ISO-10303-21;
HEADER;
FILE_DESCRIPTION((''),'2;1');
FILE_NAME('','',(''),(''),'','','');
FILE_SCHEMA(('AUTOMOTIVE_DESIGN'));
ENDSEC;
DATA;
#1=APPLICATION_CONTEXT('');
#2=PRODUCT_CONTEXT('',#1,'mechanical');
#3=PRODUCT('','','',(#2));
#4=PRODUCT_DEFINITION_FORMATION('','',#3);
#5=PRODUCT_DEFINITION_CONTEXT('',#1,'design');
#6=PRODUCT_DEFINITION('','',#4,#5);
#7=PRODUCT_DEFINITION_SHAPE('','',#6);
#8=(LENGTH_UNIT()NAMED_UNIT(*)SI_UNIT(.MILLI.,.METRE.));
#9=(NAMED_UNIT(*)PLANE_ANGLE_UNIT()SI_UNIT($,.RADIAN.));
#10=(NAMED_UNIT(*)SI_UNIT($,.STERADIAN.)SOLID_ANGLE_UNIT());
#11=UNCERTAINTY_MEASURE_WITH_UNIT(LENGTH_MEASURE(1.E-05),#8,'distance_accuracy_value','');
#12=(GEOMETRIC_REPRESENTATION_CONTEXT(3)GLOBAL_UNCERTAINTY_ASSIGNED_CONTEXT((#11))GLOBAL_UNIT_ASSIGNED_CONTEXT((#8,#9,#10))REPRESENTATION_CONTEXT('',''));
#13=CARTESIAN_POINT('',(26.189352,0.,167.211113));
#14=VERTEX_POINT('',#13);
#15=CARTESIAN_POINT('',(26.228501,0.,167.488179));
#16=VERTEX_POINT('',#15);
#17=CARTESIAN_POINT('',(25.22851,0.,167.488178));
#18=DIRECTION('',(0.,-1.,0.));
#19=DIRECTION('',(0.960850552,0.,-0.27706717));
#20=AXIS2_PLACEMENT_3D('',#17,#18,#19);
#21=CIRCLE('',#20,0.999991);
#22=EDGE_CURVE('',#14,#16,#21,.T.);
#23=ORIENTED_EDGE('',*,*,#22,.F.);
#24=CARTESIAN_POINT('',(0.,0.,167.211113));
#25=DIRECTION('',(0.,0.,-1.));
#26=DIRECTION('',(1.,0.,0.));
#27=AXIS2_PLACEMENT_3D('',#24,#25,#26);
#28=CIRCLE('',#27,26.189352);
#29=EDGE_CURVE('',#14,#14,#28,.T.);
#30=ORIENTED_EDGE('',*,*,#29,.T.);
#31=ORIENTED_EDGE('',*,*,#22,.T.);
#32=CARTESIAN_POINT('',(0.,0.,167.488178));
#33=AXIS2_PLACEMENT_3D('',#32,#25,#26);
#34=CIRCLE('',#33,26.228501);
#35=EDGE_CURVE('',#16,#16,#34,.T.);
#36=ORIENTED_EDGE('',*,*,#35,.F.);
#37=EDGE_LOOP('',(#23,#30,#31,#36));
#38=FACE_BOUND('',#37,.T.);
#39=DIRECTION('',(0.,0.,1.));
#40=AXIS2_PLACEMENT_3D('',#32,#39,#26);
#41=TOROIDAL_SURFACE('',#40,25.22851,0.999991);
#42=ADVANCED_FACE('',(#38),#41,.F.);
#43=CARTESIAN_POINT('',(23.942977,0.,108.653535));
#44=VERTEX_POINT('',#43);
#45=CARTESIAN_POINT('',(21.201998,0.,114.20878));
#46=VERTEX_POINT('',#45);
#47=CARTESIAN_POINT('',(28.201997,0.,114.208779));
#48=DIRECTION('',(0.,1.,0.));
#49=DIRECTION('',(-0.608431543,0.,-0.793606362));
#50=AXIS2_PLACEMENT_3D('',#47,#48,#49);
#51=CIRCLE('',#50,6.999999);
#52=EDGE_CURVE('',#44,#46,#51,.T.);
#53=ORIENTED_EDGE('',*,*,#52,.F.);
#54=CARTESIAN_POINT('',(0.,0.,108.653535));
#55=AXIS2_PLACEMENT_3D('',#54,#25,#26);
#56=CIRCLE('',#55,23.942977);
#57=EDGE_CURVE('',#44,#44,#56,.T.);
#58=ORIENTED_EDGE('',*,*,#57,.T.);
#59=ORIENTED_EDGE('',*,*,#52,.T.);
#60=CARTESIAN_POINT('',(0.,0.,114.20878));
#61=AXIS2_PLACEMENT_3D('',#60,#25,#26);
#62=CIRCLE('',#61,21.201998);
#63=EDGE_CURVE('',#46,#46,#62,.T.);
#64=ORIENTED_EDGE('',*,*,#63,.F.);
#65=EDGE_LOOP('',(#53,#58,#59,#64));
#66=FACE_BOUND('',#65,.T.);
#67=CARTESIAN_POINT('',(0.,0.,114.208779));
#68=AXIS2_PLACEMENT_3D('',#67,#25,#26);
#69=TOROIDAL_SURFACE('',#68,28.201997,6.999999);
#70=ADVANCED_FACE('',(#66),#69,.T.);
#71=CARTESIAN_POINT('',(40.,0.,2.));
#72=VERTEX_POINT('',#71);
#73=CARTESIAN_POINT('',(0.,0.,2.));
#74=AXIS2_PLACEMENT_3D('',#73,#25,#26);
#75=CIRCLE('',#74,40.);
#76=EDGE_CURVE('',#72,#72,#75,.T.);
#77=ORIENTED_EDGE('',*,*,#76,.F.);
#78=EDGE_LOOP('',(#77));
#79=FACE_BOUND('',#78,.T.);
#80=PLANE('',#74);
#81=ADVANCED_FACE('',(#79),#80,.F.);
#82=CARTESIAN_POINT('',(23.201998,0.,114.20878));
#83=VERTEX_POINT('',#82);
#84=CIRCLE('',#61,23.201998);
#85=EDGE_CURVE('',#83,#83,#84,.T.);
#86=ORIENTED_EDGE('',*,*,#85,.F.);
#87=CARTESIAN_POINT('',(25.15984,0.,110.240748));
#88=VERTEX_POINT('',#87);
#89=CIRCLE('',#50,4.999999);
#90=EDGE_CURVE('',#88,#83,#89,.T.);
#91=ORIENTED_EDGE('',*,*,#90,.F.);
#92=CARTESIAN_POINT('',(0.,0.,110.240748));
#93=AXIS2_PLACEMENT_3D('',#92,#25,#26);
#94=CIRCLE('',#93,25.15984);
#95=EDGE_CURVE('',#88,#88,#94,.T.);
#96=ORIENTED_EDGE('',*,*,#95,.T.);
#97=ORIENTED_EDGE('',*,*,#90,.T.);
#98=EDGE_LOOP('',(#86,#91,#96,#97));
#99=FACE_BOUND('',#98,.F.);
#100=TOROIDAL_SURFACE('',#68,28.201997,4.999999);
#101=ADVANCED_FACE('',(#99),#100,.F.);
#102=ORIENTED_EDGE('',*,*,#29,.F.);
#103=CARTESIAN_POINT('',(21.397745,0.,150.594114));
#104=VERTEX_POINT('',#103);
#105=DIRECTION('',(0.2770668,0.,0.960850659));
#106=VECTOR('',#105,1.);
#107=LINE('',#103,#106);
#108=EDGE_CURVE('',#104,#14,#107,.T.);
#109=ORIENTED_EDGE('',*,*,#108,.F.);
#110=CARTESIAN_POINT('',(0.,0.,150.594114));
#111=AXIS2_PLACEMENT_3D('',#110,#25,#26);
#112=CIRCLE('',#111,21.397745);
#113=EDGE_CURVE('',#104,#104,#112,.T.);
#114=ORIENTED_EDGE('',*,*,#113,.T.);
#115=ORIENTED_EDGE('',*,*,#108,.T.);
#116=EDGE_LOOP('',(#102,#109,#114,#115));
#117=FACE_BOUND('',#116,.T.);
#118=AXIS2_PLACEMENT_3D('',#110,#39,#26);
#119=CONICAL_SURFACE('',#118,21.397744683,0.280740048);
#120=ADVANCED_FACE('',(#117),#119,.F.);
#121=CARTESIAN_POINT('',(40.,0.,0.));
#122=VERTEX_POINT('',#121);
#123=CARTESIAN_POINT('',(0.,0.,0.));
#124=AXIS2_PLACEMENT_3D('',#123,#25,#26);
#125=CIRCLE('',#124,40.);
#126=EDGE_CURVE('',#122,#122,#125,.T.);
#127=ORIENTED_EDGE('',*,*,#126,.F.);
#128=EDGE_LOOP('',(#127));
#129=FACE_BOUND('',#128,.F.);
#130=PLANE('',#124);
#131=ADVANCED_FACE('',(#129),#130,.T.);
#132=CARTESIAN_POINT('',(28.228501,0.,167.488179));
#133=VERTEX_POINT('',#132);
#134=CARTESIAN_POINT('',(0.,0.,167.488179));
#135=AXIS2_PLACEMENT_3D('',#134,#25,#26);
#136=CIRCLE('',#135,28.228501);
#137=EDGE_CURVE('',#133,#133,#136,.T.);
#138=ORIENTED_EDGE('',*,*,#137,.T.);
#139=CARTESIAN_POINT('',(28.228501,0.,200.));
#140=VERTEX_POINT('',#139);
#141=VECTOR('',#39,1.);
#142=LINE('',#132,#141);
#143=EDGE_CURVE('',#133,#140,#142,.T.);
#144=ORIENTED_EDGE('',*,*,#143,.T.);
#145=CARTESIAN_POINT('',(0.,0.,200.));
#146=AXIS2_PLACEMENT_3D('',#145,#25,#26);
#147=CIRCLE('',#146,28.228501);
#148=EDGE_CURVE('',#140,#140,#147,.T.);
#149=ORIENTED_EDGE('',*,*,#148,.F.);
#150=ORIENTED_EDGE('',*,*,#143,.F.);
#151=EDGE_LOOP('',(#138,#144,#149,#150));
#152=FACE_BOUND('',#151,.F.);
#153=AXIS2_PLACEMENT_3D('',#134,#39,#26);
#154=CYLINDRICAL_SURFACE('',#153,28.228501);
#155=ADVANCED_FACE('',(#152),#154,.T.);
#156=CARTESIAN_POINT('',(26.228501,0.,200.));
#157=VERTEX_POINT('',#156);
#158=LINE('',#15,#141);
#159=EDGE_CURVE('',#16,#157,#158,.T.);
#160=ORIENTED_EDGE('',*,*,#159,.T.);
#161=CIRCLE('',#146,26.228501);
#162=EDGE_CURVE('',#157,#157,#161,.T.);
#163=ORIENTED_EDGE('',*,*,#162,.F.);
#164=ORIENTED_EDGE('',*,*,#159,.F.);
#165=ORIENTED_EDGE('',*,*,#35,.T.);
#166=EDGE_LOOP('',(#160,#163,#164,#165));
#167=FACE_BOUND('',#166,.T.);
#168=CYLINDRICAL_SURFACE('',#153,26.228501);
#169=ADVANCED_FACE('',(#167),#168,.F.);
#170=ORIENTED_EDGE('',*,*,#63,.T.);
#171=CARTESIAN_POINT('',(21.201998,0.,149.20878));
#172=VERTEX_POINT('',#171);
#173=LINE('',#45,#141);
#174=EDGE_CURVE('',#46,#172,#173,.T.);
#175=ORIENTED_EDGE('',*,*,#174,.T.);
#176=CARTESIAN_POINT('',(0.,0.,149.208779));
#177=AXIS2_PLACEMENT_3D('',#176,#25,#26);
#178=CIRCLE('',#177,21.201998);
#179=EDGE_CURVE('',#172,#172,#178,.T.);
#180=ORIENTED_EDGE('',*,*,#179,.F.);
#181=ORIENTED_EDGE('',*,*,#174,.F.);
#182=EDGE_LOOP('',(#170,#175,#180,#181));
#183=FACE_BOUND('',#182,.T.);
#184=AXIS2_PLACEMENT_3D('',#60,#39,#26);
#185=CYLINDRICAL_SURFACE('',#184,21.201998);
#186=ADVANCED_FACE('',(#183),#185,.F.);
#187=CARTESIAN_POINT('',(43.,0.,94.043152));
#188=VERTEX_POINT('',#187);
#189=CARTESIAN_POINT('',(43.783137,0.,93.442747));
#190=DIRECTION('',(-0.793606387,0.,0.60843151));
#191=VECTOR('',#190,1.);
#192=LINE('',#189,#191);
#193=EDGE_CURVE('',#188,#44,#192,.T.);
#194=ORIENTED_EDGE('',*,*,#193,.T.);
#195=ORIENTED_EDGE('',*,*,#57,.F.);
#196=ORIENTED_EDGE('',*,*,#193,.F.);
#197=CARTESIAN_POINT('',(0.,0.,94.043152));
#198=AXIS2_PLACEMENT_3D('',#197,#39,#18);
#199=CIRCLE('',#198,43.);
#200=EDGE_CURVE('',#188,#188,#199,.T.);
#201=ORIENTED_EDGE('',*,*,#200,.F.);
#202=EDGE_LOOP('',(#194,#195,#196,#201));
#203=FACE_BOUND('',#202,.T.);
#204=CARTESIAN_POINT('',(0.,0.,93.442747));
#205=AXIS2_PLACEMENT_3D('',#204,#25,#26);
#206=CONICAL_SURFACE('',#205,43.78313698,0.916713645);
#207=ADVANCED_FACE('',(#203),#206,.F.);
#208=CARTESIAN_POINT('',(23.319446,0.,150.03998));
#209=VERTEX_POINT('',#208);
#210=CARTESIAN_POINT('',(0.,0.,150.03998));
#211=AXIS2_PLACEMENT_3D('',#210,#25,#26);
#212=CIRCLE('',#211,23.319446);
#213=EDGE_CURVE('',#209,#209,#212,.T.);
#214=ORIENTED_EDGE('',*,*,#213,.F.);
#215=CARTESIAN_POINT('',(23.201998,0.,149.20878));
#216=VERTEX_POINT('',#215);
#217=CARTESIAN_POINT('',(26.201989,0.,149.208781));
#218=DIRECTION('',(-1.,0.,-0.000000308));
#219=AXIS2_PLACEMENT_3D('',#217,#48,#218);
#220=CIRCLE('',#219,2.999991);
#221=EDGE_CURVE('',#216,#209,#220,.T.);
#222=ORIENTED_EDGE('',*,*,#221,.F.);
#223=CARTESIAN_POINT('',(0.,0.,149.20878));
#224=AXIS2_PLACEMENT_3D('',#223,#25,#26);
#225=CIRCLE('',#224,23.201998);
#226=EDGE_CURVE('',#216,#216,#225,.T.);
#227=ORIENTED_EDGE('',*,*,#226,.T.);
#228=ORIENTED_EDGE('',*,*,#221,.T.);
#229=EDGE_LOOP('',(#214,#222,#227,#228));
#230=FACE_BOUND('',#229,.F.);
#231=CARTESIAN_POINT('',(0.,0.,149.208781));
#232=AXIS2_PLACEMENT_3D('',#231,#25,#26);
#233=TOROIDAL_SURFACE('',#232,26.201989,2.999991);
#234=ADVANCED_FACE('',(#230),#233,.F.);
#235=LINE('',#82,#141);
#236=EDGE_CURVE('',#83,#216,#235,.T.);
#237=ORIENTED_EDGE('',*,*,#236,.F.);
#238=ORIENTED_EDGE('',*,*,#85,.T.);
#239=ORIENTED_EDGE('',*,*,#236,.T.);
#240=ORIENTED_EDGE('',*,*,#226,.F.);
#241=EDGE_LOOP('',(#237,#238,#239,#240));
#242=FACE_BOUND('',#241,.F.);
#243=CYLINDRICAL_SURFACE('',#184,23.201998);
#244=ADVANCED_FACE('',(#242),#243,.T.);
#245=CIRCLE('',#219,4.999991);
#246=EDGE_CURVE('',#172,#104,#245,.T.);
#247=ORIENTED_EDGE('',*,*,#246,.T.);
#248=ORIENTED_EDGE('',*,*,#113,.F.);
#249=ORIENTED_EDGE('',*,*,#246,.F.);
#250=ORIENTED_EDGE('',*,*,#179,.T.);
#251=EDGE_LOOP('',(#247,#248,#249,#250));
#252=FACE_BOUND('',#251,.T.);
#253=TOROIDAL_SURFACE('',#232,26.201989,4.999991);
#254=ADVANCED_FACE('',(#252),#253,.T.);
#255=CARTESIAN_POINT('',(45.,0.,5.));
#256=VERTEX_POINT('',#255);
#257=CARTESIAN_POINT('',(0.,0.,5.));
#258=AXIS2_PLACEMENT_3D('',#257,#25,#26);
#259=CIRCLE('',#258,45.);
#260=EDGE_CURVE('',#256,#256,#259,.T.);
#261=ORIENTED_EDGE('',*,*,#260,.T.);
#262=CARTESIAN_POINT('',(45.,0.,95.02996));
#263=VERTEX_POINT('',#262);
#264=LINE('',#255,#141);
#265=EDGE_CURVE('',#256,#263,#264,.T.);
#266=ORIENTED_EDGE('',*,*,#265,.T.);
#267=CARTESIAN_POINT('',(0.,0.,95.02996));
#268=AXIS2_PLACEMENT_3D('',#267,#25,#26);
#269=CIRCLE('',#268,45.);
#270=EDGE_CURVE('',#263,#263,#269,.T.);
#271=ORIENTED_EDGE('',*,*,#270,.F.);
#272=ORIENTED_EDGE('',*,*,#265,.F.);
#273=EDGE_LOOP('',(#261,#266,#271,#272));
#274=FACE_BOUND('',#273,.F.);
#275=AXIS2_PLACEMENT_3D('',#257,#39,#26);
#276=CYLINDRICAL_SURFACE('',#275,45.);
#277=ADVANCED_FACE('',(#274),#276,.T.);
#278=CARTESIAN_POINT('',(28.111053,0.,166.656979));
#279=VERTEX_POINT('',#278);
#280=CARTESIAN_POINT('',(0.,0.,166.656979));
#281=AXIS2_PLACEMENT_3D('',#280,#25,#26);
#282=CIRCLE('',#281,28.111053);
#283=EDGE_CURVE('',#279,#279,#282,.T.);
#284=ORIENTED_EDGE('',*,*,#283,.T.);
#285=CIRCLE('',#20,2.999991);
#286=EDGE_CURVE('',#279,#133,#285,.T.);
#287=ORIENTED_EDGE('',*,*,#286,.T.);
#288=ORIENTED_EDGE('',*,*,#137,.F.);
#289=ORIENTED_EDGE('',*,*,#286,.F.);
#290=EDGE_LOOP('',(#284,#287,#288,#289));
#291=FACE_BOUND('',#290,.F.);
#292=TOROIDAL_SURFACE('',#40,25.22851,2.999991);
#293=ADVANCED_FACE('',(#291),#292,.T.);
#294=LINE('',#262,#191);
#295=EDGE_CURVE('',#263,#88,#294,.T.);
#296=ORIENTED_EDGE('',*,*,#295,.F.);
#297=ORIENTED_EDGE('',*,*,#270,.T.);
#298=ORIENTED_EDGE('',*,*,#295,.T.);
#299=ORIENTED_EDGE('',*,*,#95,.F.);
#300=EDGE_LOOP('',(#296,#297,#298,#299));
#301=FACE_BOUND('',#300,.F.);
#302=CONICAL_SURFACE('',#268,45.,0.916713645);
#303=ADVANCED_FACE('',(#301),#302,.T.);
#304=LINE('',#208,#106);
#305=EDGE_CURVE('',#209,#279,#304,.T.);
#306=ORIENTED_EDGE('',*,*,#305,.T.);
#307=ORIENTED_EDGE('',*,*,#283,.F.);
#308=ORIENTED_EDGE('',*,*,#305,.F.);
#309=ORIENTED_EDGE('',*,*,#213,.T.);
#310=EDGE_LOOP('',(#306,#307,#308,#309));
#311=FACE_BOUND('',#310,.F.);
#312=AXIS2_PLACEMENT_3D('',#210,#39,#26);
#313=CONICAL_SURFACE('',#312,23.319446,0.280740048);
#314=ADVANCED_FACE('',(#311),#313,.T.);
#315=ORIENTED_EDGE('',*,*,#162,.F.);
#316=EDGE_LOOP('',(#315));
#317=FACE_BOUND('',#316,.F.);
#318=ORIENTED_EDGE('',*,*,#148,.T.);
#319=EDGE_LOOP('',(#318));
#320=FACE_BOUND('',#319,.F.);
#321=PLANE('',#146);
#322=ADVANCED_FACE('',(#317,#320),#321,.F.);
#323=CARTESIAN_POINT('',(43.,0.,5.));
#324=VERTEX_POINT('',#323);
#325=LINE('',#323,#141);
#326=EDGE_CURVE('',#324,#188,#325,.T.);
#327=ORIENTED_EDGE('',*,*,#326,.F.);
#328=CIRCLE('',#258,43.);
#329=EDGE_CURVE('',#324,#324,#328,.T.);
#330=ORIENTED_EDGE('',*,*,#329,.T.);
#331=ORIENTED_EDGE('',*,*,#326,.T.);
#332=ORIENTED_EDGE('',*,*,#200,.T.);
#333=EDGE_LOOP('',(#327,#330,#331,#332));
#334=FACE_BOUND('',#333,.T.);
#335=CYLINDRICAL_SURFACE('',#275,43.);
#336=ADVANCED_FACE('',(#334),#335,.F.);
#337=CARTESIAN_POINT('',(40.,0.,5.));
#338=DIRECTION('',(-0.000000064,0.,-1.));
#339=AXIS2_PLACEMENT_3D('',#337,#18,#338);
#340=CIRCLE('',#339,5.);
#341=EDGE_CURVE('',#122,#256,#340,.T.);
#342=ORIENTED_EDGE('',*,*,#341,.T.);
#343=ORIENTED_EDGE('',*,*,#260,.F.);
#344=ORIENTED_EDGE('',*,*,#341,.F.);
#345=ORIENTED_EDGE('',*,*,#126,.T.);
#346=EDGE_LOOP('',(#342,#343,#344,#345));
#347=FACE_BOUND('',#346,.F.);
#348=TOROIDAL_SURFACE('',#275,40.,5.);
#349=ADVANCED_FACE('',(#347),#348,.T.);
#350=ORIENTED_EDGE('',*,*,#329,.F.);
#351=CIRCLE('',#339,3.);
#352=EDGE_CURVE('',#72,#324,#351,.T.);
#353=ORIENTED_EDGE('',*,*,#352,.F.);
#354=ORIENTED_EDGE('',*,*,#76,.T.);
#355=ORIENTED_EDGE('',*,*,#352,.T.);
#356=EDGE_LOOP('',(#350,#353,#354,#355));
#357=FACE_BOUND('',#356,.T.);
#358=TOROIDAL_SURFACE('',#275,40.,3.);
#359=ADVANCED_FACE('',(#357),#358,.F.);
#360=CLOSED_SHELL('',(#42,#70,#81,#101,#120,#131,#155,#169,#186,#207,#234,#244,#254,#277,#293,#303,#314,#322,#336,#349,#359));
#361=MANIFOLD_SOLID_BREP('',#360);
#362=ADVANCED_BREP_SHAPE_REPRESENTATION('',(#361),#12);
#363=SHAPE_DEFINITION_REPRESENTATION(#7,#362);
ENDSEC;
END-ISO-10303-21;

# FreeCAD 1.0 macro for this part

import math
import FreeCAD as App
import Part
import Sketcher
from FreeCAD import Vector


def faces_at(feature, points):
    """Names of the faces that lie closest to the given points."""
    faces = feature.Shape.Faces
    near = lambda p: min(range(len(faces)), key=lambda i: faces[i].distToShape(Part.Vertex(*p))[0])
    return sorted({f"Face{near(p) + 1}" for p in points})

doc = App.newDocument("Part")
body = doc.addObject("PartDesign::Body", "Body")

sketch1 = body.newObject("Sketcher::SketchObject", "Sketch")
sketch1.AttachmentSupport = (doc.getObject("XZ_Plane"), [""])
sketch1.MapMode = "FlatFace"
sketch1.addGeometry([
    Part.LineSegment(Vector(0, 200, 0), Vector(0, 0, 0)),
    Part.LineSegment(Vector(0, 0, 0), Vector(40, 0, 0)),
    Part.ArcOfCircle(Part.Circle(Vector(40, 5, 0), Vector(0, 0, 1), 5), math.radians(-90), math.radians(0)),
    Part.LineSegment(Vector(45, 5, 0), Vector(45, 95, 0)),
    Part.LineSegment(Vector(45, 95, 0), Vector(25.2, 110.2, 0)),
    Part.ArcOfCircle(Part.Circle(Vector(28.2, 114.2, 0), Vector(0, 0, 1), 5), math.radians(180), math.radians(233)),
    Part.LineSegment(Vector(23.2, 114.2, 0), Vector(23.2, 149.2, 0)),
    Part.ArcOfCircle(Part.Circle(Vector(26.2, 149.2, 0), Vector(0, 0, 1), 3), math.radians(163.91), math.radians(180)),
    Part.LineSegment(Vector(23.3, 150, 0), Vector(28.1, 166.7, 0)),
    Part.ArcOfCircle(Part.Circle(Vector(25.2, 167.5, 0), Vector(0, 0, 1), 3), math.radians(-16.09), math.radians(0)),
    Part.LineSegment(Vector(28.2, 167.5, 0), Vector(28.2, 200, 0)),
    Part.LineSegment(Vector(28.2, 200, 0), Vector(0, 200, 0)),
], False)
sketch1.addConstraint([
    Sketcher.Constraint("Coincident", 0, 2, 1, 1),
    Sketcher.Constraint("Tangent", 1, 2, 2, 1),
    Sketcher.Constraint("Tangent", 2, 2, 3, 1),
    Sketcher.Constraint("Coincident", 3, 2, 4, 1),
    Sketcher.Constraint("Tangent", 4, 2, 5, 2),
    Sketcher.Constraint("Tangent", 5, 1, 6, 1),
    Sketcher.Constraint("Tangent", 6, 2, 7, 2),
    Sketcher.Constraint("Tangent", 7, 1, 8, 1),
    Sketcher.Constraint("Tangent", 8, 2, 9, 1),
    Sketcher.Constraint("Tangent", 9, 2, 10, 1),
    Sketcher.Constraint("Coincident", 10, 2, 11, 1),
    Sketcher.Constraint("Coincident", 11, 2, 0, 1),
    Sketcher.Constraint("Vertical", 0),
    Sketcher.Constraint("Horizontal", 1),
    Sketcher.Constraint("Vertical", 3),
    Sketcher.Constraint("Vertical", 6),
    Sketcher.Constraint("Vertical", 10),
    Sketcher.Constraint("Horizontal", 11),
    Sketcher.Constraint("Coincident", 0, 2, -1, 1),
    Sketcher.Constraint("Equal", 2, 5),
    Sketcher.Constraint("Equal", 7, 9),
    Sketcher.Constraint("Radius", 2, 5.0),
    Sketcher.Constraint("DistanceX", 1, 1, 1, 2, 40.0),
    Sketcher.Constraint("DistanceY", 0, 2, 0, 1, 200.0),
    Sketcher.Constraint("DistanceY", 6, 1, 6, 2, 35.0),
    Sketcher.Constraint("Distance", 4, 25.0),
    Sketcher.Constraint("Radius", 7, 2.999991),
    Sketcher.Constraint("DistanceX", 11, 2, 11, 1, 28.228501),
    Sketcher.Constraint("DistanceX", -1, 1, 5, 1, 23.201998),
    Sketcher.Constraint("DistanceY", 7, 1, 8, 2, 16.616999),
    Sketcher.Constraint("DistanceY", 3, 1, 3, 2, 90.02996),
])
revolution = body.newObject("PartDesign::Revolution", "Revolution")
revolution.Profile = sketch1
revolution.ReferenceAxis = (sketch1, ["V_Axis"])
revolution.Angle = 360
doc.recompute()

thickness = body.newObject("PartDesign::Thickness", "Thickness")
thickness.Base = (revolution, faces_at(revolution, [(0, 0, 200)]))
thickness.Value = 2
thickness.Reversed = True
thickness.Join = "Arc"

doc.recompute()
